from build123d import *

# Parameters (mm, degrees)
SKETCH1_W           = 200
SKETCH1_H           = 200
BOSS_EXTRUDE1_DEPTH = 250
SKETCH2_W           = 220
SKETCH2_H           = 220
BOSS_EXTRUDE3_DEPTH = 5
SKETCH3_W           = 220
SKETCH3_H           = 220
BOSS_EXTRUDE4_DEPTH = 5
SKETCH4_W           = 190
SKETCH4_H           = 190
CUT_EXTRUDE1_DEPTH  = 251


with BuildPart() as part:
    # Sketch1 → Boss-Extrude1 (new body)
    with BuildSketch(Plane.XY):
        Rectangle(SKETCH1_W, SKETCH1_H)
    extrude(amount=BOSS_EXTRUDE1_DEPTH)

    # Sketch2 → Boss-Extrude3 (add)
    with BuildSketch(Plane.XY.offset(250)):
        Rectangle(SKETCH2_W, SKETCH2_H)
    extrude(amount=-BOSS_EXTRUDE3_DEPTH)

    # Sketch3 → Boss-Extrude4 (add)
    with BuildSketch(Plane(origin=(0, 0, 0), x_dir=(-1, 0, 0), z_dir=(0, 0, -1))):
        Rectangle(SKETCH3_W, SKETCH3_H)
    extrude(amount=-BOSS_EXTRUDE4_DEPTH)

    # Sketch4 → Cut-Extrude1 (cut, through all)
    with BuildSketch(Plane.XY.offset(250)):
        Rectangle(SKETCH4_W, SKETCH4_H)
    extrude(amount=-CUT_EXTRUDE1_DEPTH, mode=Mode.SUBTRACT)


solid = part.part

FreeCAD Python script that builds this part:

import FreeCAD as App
import Part
import Sketcher


def add_polygon(sketch, points):
    """Adds a closed chain of lines whose ends are joined by coincident constraints."""
    first, n = sketch.GeometryCount, len(points)
    for a, b in zip(points, points[1:] + points[:1]):
        sketch.addGeometry(Part.LineSegment(App.Vector(*a, 0), App.Vector(*b, 0)), False)
    for i in range(n):
        sketch.addConstraint(Sketcher.Constraint("Coincident", first + i, 2, first + (i + 1) % n, 1))

doc = App.newDocument("Part")
params = doc.addObject("Spreadsheet::Sheet", "Params")
for row, (alias, value) in enumerate([
    ("sketch1_width", "200 mm"),
    ("pad1_length", "250 mm"),
    ("sketch2_width", "220 mm"),
    ("pad2_length", "5 mm"),
    ("sketch3_width", "220 mm"),
    ("pad3_length", "5 mm"),
    ("sketch4_width", "190 mm"),
], start=1):
    params.set(f"A{row}", alias)
    params.set(f"B{row}", "=" + value)
    params.setAlias(f"B{row}", alias)

body = doc.addObject("PartDesign::Body", "Body")

# Sketch on XY plane
sketch1 = doc.addObject("Sketcher::SketchObject", "Sketch")
body.addObject(sketch1)
sketch1.AttachmentSupport = (doc.XY_Plane, [""])
sketch1.MapMode = "FlatFace"
add_polygon(sketch1, [(-100, 100), (-100, -100), (100, -100), (100, 100)])  # lines 0-3
sketch1.addConstraint([
    Sketcher.Constraint("Vertical", 0),
    Sketcher.Constraint("Horizontal", 1),
    Sketcher.Constraint("Vertical", 2),
    Sketcher.Constraint("Horizontal", 3),
    Sketcher.Constraint("Symmetric", 0, 2, 2, 2, -1, 1),
    Sketcher.Constraint("Equal", 3, 0),
    Sketcher.Constraint("DistanceX", 1, 1, 1, 2, 200.0),
])
sketch1.setExpression("Constraints[10]", "Params.sketch1_width")
pad1 = doc.addObject("PartDesign::Pad", "Pad")
body.addObject(pad1)
pad1.Profile = sketch1
pad1.setExpression("Length", "Params.pad1_length")

# Sketch on XY plane
sketch2 = doc.addObject("Sketcher::SketchObject", "Sketch001")
body.addObject(sketch2)
sketch2.AttachmentSupport = (doc.XY_Plane, [""])
sketch2.MapMode = "FlatFace"
sketch2.AttachmentOffset = App.Placement(App.Vector(0, 0, 250), App.Rotation())
add_polygon(sketch2, [(-110, 110), (-110, -110), (110, -110), (110, 110)])  # lines 0-3
sketch2.addConstraint([
    Sketcher.Constraint("Vertical", 0),
    Sketcher.Constraint("Horizontal", 1),
    Sketcher.Constraint("Vertical", 2),
    Sketcher.Constraint("Horizontal", 3),
    Sketcher.Constraint("Symmetric", 0, 2, 2, 2, -1, 1),
    Sketcher.Constraint("Equal", 3, 0),
    Sketcher.Constraint("DistanceX", 1, 1, 1, 2, 220.0),
])
sketch2.setExpression("Constraints[10]", "Params.sketch2_width")
pad2 = doc.addObject("PartDesign::Pad", "Pad001")
body.addObject(pad2)
pad2.Profile = sketch2
pad2.setExpression("Length", "Params.pad2_length")
pad2.Reversed = True

# Sketch on XY plane
sketch3 = doc.addObject("Sketcher::SketchObject", "Sketch002")
body.addObject(sketch3)
sketch3.AttachmentSupport = (doc.XY_Plane, [""])
sketch3.MapMode = "FlatFace"
add_polygon(sketch3, [(110, 110), (110, -110), (-110, -110), (-110, 110)])  # lines 0-3
sketch3.addConstraint([
    Sketcher.Constraint("Vertical", 0),
    Sketcher.Constraint("Horizontal", 1),
    Sketcher.Constraint("Vertical", 2),
    Sketcher.Constraint("Horizontal", 3),
    Sketcher.Constraint("Symmetric", 0, 2, 2, 2, -1, 1),
    Sketcher.Constraint("Equal", 3, 0),
    Sketcher.Constraint("DistanceX", 1, 2, 1, 1, 220.0),
])
sketch3.setExpression("Constraints[10]", "Params.sketch3_width")
pad3 = doc.addObject("PartDesign::Pad", "Pad002")
body.addObject(pad3)
pad3.Profile = sketch3
pad3.setExpression("Length", "Params.pad3_length")

# Sketch on XY plane
sketch4 = doc.addObject("Sketcher::SketchObject", "Sketch003")
body.addObject(sketch4)
sketch4.AttachmentSupport = (doc.XY_Plane, [""])
sketch4.MapMode = "FlatFace"
sketch4.AttachmentOffset = App.Placement(App.Vector(0, 0, 250), App.Rotation())
add_polygon(sketch4, [(-95, 95), (-95, -95), (95, -95), (95, 95)])  # lines 0-3
sketch4.addConstraint([
    Sketcher.Constraint("Vertical", 0),
    Sketcher.Constraint("Horizontal", 1),
    Sketcher.Constraint("Vertical", 2),
    Sketcher.Constraint("Horizontal", 3),
    Sketcher.Constraint("Symmetric", 0, 2, 2, 2, -1, 1),
    Sketcher.Constraint("Equal", 3, 0),
    Sketcher.Constraint("DistanceX", 1, 1, 1, 2, 190.0),
])
sketch4.setExpression("Constraints[10]", "Params.sketch4_width")
pocket1 = doc.addObject("PartDesign::Pocket", "Pocket")
body.addObject(pocket1)
pocket1.Profile = sketch4
pocket1.Type = "ThroughAll"

doc.recompute()
